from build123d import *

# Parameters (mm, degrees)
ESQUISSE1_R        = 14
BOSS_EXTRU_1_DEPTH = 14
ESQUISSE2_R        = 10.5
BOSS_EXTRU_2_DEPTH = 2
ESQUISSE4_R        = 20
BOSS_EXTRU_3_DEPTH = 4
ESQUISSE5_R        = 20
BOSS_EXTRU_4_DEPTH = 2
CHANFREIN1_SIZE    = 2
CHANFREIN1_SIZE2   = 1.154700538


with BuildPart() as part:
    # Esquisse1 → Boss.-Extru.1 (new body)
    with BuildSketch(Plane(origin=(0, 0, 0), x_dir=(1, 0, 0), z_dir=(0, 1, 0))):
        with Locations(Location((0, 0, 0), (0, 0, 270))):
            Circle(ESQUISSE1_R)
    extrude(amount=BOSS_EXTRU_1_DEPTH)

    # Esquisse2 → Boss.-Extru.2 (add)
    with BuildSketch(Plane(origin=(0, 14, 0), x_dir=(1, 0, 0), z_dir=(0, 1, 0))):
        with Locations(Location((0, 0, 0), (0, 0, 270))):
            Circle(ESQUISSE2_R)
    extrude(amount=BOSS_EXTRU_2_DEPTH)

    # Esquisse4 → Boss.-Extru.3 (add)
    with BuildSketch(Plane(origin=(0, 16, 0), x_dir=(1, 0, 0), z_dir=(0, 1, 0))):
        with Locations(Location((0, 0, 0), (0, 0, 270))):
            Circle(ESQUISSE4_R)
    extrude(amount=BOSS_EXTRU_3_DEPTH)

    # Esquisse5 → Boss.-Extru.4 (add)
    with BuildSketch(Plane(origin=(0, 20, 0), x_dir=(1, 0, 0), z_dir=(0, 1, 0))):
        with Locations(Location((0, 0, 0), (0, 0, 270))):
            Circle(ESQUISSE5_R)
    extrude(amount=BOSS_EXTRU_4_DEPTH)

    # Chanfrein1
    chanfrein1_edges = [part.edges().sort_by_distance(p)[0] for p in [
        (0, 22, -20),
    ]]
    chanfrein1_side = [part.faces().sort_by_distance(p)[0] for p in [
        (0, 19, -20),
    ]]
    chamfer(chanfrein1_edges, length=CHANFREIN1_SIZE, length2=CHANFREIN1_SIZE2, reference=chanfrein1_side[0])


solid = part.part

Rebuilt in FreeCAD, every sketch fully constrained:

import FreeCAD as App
import Part
import Sketcher
from FreeCAD import Vector


def edges_at(feature, points):
    """Names of the edges that pass closest to the given points."""
    edges = feature.Shape.Edges
    near = lambda p: min(range(len(edges)), key=lambda i: edges[i].distToShape(Part.Vertex(*p))[0])
    return sorted({f"Edge{near(p) + 1}" for p in points})

doc = App.newDocument("Part")
body = doc.addObject("PartDesign::Body", "Body")

sketch1 = body.newObject("Sketcher::SketchObject", "Sketch")
sketch1.AttachmentSupport = (doc.getObject("XZ_Plane"), [""])
sketch1.MapMode = "FlatFace"
sketch1.addGeometry(Part.Circle(Vector(0, 0, 0), Vector(0, 0, 1), 14), False)
sketch1.addConstraint([
    Sketcher.Constraint("Coincident", 0, 3, -1, 1),
    Sketcher.Constraint("Diameter", 0, 28.0),
])
pad1 = body.newObject("PartDesign::Pad", "Pad")
pad1.Profile = sketch1
pad1.Length = 14
pad1.Reversed = True

sketch2 = body.newObject("Sketcher::SketchObject", "Sketch001")
sketch2.AttachmentSupport = (doc.getObject("XZ_Plane"), [""])
sketch2.MapMode = "FlatFace"
sketch2.AttachmentOffset = App.Placement(Vector(0, 0, -14), App.Rotation())
sketch2.addGeometry(Part.Circle(Vector(0, 0, 0), Vector(0, 0, 1), 10), False)
sketch2.addConstraint([
    Sketcher.Constraint("Coincident", 0, 3, -1, 1),
    Sketcher.Constraint("Diameter", 0, 21.0),
])
pad2 = body.newObject("PartDesign::Pad", "Pad001")
pad2.Profile = sketch2
pad2.Length = 2
pad2.Reversed = True

sketch3 = body.newObject("Sketcher::SketchObject", "Sketch002")
sketch3.AttachmentSupport = (doc.getObject("XZ_Plane"), [""])
sketch3.MapMode = "FlatFace"
sketch3.AttachmentOffset = App.Placement(Vector(0, 0, -16), App.Rotation())
sketch3.addGeometry(Part.Circle(Vector(0, 0, 0), Vector(0, 0, 1), 20), False)
sketch3.addConstraint([
    Sketcher.Constraint("Coincident", 0, 3, -1, 1),
    Sketcher.Constraint("Diameter", 0, 40.0),
])
pad3 = body.newObject("PartDesign::Pad", "Pad002")
pad3.Profile = sketch3
pad3.Length = 4
pad3.Reversed = True

sketch4 = body.newObject("Sketcher::SketchObject", "Sketch003")
sketch4.AttachmentSupport = (doc.getObject("XZ_Plane"), [""])
sketch4.MapMode = "FlatFace"
sketch4.AttachmentOffset = App.Placement(Vector(0, 0, -20), App.Rotation())
sketch4.addGeometry(Part.Circle(Vector(0, 0, 0), Vector(0, 0, 1), 20), False)
sketch4.addConstraint([
    Sketcher.Constraint("Coincident", 0, 3, -1, 1),
    Sketcher.Constraint("Diameter", 0, 40.0),
])
pad4 = body.newObject("PartDesign::Pad", "Pad003")
pad4.Profile = sketch4
pad4.Length = 2
pad4.Reversed = True
doc.recompute()

chamfer = body.newObject("PartDesign::Chamfer", "Chamfer")
chamfer.Base = (pad4, edges_at(pad4, [(0, 22, -20)]))
chamfer.ChamferType = "Two distances"
chamfer.Size = 2
chamfer.Size2 = 1.154701

doc.recompute()
